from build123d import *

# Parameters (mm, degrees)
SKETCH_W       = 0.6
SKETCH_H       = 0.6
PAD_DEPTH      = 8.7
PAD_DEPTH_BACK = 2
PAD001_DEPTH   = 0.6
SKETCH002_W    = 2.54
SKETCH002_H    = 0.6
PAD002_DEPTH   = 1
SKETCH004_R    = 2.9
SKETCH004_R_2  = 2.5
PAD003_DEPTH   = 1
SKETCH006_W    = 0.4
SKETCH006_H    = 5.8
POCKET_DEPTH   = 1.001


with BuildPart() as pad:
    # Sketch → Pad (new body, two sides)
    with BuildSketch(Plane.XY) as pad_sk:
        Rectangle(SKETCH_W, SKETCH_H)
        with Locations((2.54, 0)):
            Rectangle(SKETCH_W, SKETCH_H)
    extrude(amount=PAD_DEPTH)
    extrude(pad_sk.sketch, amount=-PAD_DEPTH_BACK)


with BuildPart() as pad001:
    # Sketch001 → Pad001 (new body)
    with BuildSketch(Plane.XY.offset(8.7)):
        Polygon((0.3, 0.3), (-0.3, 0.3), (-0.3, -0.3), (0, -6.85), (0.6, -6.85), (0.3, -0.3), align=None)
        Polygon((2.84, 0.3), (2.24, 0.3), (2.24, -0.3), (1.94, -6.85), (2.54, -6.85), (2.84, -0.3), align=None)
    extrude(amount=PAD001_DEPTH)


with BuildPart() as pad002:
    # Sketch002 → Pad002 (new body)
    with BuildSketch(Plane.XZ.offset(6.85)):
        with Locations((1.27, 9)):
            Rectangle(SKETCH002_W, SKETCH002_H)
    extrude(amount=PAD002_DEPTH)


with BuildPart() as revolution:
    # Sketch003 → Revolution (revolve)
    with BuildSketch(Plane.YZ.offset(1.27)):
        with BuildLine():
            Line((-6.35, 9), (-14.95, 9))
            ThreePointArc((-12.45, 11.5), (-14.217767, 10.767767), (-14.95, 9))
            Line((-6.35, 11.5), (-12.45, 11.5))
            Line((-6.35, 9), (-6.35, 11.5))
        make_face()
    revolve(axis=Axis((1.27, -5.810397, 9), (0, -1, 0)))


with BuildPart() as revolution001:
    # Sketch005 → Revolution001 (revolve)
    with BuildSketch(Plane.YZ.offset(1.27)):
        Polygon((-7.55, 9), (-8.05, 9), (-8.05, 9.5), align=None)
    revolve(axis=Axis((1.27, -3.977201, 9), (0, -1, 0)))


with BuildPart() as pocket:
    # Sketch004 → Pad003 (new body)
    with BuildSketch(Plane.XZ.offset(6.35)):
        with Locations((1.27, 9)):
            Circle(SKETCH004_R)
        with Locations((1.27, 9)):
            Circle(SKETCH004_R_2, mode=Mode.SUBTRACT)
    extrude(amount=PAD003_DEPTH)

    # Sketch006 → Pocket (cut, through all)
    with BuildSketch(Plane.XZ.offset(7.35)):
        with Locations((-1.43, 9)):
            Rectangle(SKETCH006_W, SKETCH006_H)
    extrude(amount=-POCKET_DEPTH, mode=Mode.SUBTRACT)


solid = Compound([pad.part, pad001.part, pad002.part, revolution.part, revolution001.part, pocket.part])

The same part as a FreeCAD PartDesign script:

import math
import FreeCAD as App
import Part
import Sketcher

V = App.Vector
Q = App.Units.Quantity

doc = App.newDocument("Part")
body = doc.addObject("PartDesign::Body", "Body")
body.AllowCompound = True

sketch1 = doc.addObject("Sketcher::SketchObject", "Sketch")
body.addObject(sketch1)
sketch1.AttachmentSupport = (doc.XY_Plane, [""])
sketch1.MapMode = "FlatFace"
sketch1.addGeometry(Part.LineSegment(V(-0.3, 0.3, 0), V(-0.3, -0.3, 0)), False)
sketch1.addGeometry(Part.LineSegment(V(-0.3, -0.3, 0), V(0.3, -0.3, 0)), False)
sketch1.addGeometry(Part.LineSegment(V(0.3, -0.3, 0), V(0.3, 0.3, 0)), False)
sketch1.addGeometry(Part.LineSegment(V(0.3, 0.3, 0), V(-0.3, 0.3, 0)), False)
sketch1.addGeometry(Part.LineSegment(V(2.2, 0.3, 0), V(2.2, -0.3, 0)), False)
sketch1.addGeometry(Part.LineSegment(V(2.2, -0.3, 0), V(2.8, -0.3, 0)), False)
sketch1.addGeometry(Part.LineSegment(V(2.8, -0.3, 0), V(2.8, 0.3, 0)), False)
sketch1.addGeometry(Part.LineSegment(V(2.8, 0.3, 0), V(2.2, 0.3, 0)), False)
sketch1.addConstraint(Sketcher.Constraint("Coincident", 0, 2, 1, 1))
sketch1.addConstraint(Sketcher.Constraint("Coincident", 1, 2, 2, 1))
sketch1.addConstraint(Sketcher.Constraint("Coincident", 2, 2, 3, 1))
sketch1.addConstraint(Sketcher.Constraint("Coincident", 3, 2, 0, 1))
sketch1.addConstraint(Sketcher.Constraint("Coincident", 4, 2, 5, 1))
sketch1.addConstraint(Sketcher.Constraint("Coincident", 5, 2, 6, 1))
sketch1.addConstraint(Sketcher.Constraint("Coincident", 6, 2, 7, 1))
sketch1.addConstraint(Sketcher.Constraint("Coincident", 7, 2, 4, 1))
sketch1.addConstraint(Sketcher.Constraint("Vertical", 0))
sketch1.addConstraint(Sketcher.Constraint("Horizontal", 1))
sketch1.addConstraint(Sketcher.Constraint("Vertical", 2))
sketch1.addConstraint(Sketcher.Constraint("Horizontal", 3))
sketch1.addConstraint(Sketcher.Constraint("Vertical", 4))
sketch1.addConstraint(Sketcher.Constraint("Horizontal", 5))
sketch1.addConstraint(Sketcher.Constraint("Vertical", 6))
sketch1.addConstraint(Sketcher.Constraint("Horizontal", 7))
sketch1.addConstraint(Sketcher.Constraint("Symmetric", 0, 2, 2, 2, -1, 1))
sketch1.addConstraint(Sketcher.Constraint("Horizontal", 1, 2, 4, 2))
sketch1.addConstraint(Sketcher.Constraint("Horizontal", 3, 2, 6, 2))
sketch1.addConstraint(Sketcher.Constraint("Equal", 3, 5))
sketch1.addConstraint(Sketcher.Constraint("Equal", 7, 0))
sketch1.addConstraint(Sketcher.Constraint("DistanceX", 1, 1, 1, 2, Q("0.6 mm")))
sketch1.addConstraint(Sketcher.Constraint("DistanceX", -1, 1, 4, 2, Q("2.24 mm")))
pad1 = doc.addObject("PartDesign::Pad", "Pad")
body.addObject(pad1)
pad1.Profile = sketch1
pad1.Type = "TwoLengths"
pad1.Length = 8.7
pad1.Length2 = 2
body2 = doc.addObject("PartDesign::Body", "Body001")
body2.AllowCompound = True

sketch2 = doc.addObject("Sketcher::SketchObject", "Sketch001")
body2.addObject(sketch2)
sketch2.AttachmentSupport = (doc.getObject("XY_Plane001"), [""])
sketch2.MapMode = "FlatFace"
sketch2.AttachmentOffset = App.Placement(V(0, 0, 8.7), App.Rotation())
sketch2.addGeometry(Part.LineSegment(V(0.3, 0.3, 0), V(-0.3, 0.3, 0)), False)
sketch2.addGeometry(Part.LineSegment(V(-0.3, 0.3, 0), V(-0.3, -0.3, 0)), False)
sketch2.addGeometry(Part.LineSegment(V(-0.3, -0.3, 0), V(0, -6.8, 0)), False)
sketch2.addGeometry(Part.LineSegment(V(0, -6.8, 0), V(0.6, -6.8, 0)), False)
sketch2.addGeometry(Part.LineSegment(V(0.6, -6.8, 0), V(0.3, -0.3, 0)), False)
sketch2.addGeometry(Part.LineSegment(V(0.3, -0.3, 0), V(0.3, 0.3, 0)), False)
sketch2.addGeometry(Part.LineSegment(V(2.8, 0.3, 0), V(2.2, 0.3, 0)), False)
sketch2.addGeometry(Part.LineSegment(V(2.2, 0.3, 0), V(2.2, -0.3, 0)), False)
sketch2.addGeometry(Part.LineSegment(V(2.2, -0.3, 0), V(1.9, -6.8, 0)), False)
sketch2.addGeometry(Part.LineSegment(V(1.9, -6.8, 0), V(2.5, -6.8, 0)), False)
sketch2.addGeometry(Part.LineSegment(V(2.5, -6.8, 0), V(2.8, -0.3, 0)), False)
sketch2.addGeometry(Part.LineSegment(V(2.8, -0.3, 0), V(2.8, 0.3, 0)), False)
sketch2.addConstraint(Sketcher.Constraint("Coincident", 0, 2, 1, 1))
sketch2.addConstraint(Sketcher.Constraint("Coincident", 1, 2, 2, 1))
sketch2.addConstraint(Sketcher.Constraint("Coincident", 2, 2, 3, 1))
sketch2.addConstraint(Sketcher.Constraint("Coincident", 3, 2, 4, 1))
sketch2.addConstraint(Sketcher.Constraint("Coincident", 4, 2, 5, 1))
sketch2.addConstraint(Sketcher.Constraint("Coincident", 5, 2, 0, 1))
sketch2.addConstraint(Sketcher.Constraint("Coincident", 6, 2, 7, 1))
sketch2.addConstraint(Sketcher.Constraint("Coincident", 7, 2, 8, 1))
sketch2.addConstraint(Sketcher.Constraint("Coincident", 8, 2, 9, 1))
sketch2.addConstraint(Sketcher.Constraint("Coincident", 9, 2, 10, 1))
sketch2.addConstraint(Sketcher.Constraint("Coincident", 10, 2, 11, 1))
sketch2.addConstraint(Sketcher.Constraint("Coincident", 11, 2, 6, 1))
sketch2.addConstraint(Sketcher.Constraint("Horizontal", 0))
sketch2.addConstraint(Sketcher.Constraint("Vertical", 1))
sketch2.addConstraint(Sketcher.Constraint("Horizontal", 3))
sketch2.addConstraint(Sketcher.Constraint("Vertical", 5))
sketch2.addConstraint(Sketcher.Constraint("Horizontal", 6))
sketch2.addConstraint(Sketcher.Constraint("Vertical", 7))
sketch2.addConstraint(Sketcher.Constraint("Horizontal", 9))
sketch2.addConstraint(Sketcher.Constraint("Vertical", 11))
sketch2.addConstraint(Sketcher.Constraint("Symmetric", 0, 2, 4, 2, -1, 1))
sketch2.addConstraint(Sketcher.Constraint("PointOnObject", 2, 2, -2))
sketch2.addConstraint(Sketcher.Constraint("Parallel", 2, 4))
sketch2.addConstraint(Sketcher.Constraint("Parallel", 8, 10))
sketch2.addConstraint(Sketcher.Constraint("Horizontal", 1, 2, 4, 2))
sketch2.addConstraint(Sketcher.Constraint("Horizontal", 5, 2, 6, 2))
sketch2.addConstraint(Sketcher.Constraint("Horizontal", 4, 2, 7, 2))
sketch2.addConstraint(Sketcher.Constraint("Horizontal", 3, 2, 8, 2))
sketch2.addConstraint(Sketcher.Constraint("Horizontal", 7, 2, 10, 2))
sketch2.addConstraint(Sketcher.Constraint("Equal", 3, 6))
sketch2.addConstraint(Sketcher.Constraint("Equal", 9, 1))
sketch2.addConstraint(Sketcher.Constraint("Equal", 4, 8))
sketch2.addConstraint(Sketcher.Constraint("DistanceX", 0, 2, 0, 1, Q("0.6 mm")))
sketch2.addConstraint(Sketcher.Constraint("DistanceY", 2, 2, -1, 1, Q("6.85 mm")))
sketch2.addConstraint(Sketcher.Constraint("DistanceX", -1, 1, 6, 2, Q("2.24 mm")))
pad2 = doc.addObject("PartDesign::Pad", "Pad001")
body2.addObject(pad2)
pad2.Profile = sketch2
pad2.Length = 0.6
body3 = doc.addObject("PartDesign::Body", "Body002")

sketch3 = doc.addObject("Sketcher::SketchObject", "Sketch002")
body3.addObject(sketch3)
sketch3.AttachmentSupport = (doc.getObject("XZ_Plane002"), [""])
sketch3.MapMode = "FlatFace"
sketch3.AttachmentOffset = App.Placement(V(0, 0, 6.85), App.Rotation())
sketch3.addGeometry(Part.LineSegment(V(0, 9.3, 0), V(0, 8.7, 0)), False)
sketch3.addGeometry(Part.LineSegment(V(0, 8.7, 0), V(2.5, 8.7, 0)), False)
sketch3.addGeometry(Part.LineSegment(V(2.5, 8.7, 0), V(2.5, 9.3, 0)), False)
sketch3.addGeometry(Part.LineSegment(V(2.5, 9.3, 0), V(0, 9.3, 0)), False)
sketch3.addConstraint(Sketcher.Constraint("Coincident", 0, 2, 1, 1))
sketch3.addConstraint(Sketcher.Constraint("Coincident", 1, 2, 2, 1))
sketch3.addConstraint(Sketcher.Constraint("Coincident", 2, 2, 3, 1))
sketch3.addConstraint(Sketcher.Constraint("Coincident", 3, 2, 0, 1))
sketch3.addConstraint(Sketcher.Constraint("Vertical", 0))
sketch3.addConstraint(Sketcher.Constraint("Horizontal", 1))
sketch3.addConstraint(Sketcher.Constraint("Vertical", 2))
sketch3.addConstraint(Sketcher.Constraint("Horizontal", 3))
sketch3.addConstraint(Sketcher.Constraint("PointOnObject", 0, 2, -2))
sketch3.addConstraint(Sketcher.Constraint("DistanceY", 0, 2, 0, 1, Q("0.6 mm")))
sketch3.addConstraint(Sketcher.Constraint("DistanceX", 1, 1, 1, 2, Q("2.54 mm")))
sketch3.addConstraint(Sketcher.Constraint("DistanceY", -1, 1, 0, 2, Q("8.7 mm")))
pad3 = doc.addObject("PartDesign::Pad", "Pad002")
body3.addObject(pad3)
pad3.Profile = sketch3
pad3.Length = 1
body4 = doc.addObject("PartDesign::Body", "Body003")

sketch4 = doc.addObject("Sketcher::SketchObject", "Sketch003")
body4.addObject(sketch4)
sketch4.AttachmentSupport = (doc.getObject("YZ_Plane003"), [""])
sketch4.MapMode = "FlatFace"
sketch4.AttachmentOffset = App.Placement(V(0, 0, 1.27), App.Rotation())
sketch4.addGeometry(Part.LineSegment(V(-14.9, 9, 0), V(-6.3, 9, 0)), False)
sketch4.addGeometry(Part.LineSegment(V(-6.3, 9, 0), V(-6.3, 11.5, 0)), False)
sketch4.addGeometry(Part.LineSegment(V(-6.3, 11.5, 0), V(-12.4, 11.5, 0)), False)
sketch4.addGeometry(Part.ArcOfCircle(Part.Circle(V(-12.5, 9, 0), V(0, 0, 1), 2.5), math.radians(90), math.radians(180)), False)
sketch4.addGeometry(Part.LineSegment(V(-6.3, 9, 0), V(-14.9, 9, 0)), True)
sketch4.addConstraint(Sketcher.Constraint("Coincident", 0, 2, 1, 1))
sketch4.addConstraint(Sketcher.Constraint("Coincident", 1, 2, 2, 1))
sketch4.addConstraint(Sketcher.Constraint("Tangent", 2, 2, 3, 1))
sketch4.addConstraint(Sketcher.Constraint("Coincident", 3, 2, 0, 1))
sketch4.addConstraint(Sketcher.Constraint("Horizontal", 0))
sketch4.addConstraint(Sketcher.Constraint("Vertical", 1))
sketch4.addConstraint(Sketcher.Constraint("Horizontal", 2))
sketch4.addConstraint(Sketcher.Constraint("Horizontal", 4))
sketch4.addConstraint(Sketcher.Constraint("Coincident", 4, 1, 0, 2))
sketch4.addConstraint(Sketcher.Constraint("Horizontal", 3, 3, 0, 2))
sketch4.addConstraint(Sketcher.Constraint("Equal", 0, 4))
sketch4.addConstraint(Sketcher.Constraint("Radius", 3, Q("2.5 mm")))
sketch4.addConstraint(Sketcher.Constraint("DistanceX", 0, 1, 0, 2, Q("8.6 mm")))
sketch4.addConstraint(Sketcher.Constraint("DistanceY", -1, 1, 3, 3, Q("9 mm")))
sketch4.addConstraint(Sketcher.Constraint("DistanceX", 3, 3, -1, 1, Q("12.45 mm")))
revolution = doc.addObject("PartDesign::Revolution", "Revolution")
body4.addObject(revolution)
revolution.Profile = sketch4
revolution.ReferenceAxis = (sketch4, ["Axis0"])
revolution.Angle = 360
body5 = doc.addObject("PartDesign::Body", "Body004")

sketch5 = doc.addObject("Sketcher::SketchObject", "Sketch004")
body5.addObject(sketch5)
sketch5.AttachmentSupport = (doc.getObject("YZ_Plane004"), [""])
sketch5.MapMode = "FlatFace"
sketch5.AttachmentOffset = App.Placement(V(0, 0, 1.27), App.Rotation())
sketch5.addGeometry(Part.LineSegment(V(-8.1, 9, 0), V(-7.5, 9, 0)), False)
sketch5.addGeometry(Part.LineSegment(V(-7.5, 9, 0), V(-8.1, 9.5, 0)), False)
sketch5.addGeometry(Part.LineSegment(V(-8.1, 9.5, 0), V(-8.1, 9, 0)), False)
sketch5.addGeometry(Part.LineSegment(V(-7.5, 9, 0), V(-8.1, 9, 0)), True)
sketch5.addConstraint(Sketcher.Constraint("Coincident", 0, 2, 1, 1))
sketch5.addConstraint(Sketcher.Constraint("Coincident", 1, 2, 2, 1))
sketch5.addConstraint(Sketcher.Constraint("Coincident", 2, 2, 0, 1))
sketch5.addConstraint(Sketcher.Constraint("Horizontal", 0))
sketch5.addConstraint(Sketcher.Constraint("Vertical", 2))
sketch5.addConstraint(Sketcher.Constraint("Horizontal", 3))
sketch5.addConstraint(Sketcher.Constraint("Coincident", 3, 1, 0, 2))
sketch5.addConstraint(Sketcher.Constraint("Vertical", 1, 2, 3, 2))
sketch5.addConstraint(Sketcher.Constraint("Equal", 3, 2))
sketch5.addConstraint(Sketcher.Constraint("DistanceX", 0, 1, 0, 2, Q("0.5 mm")))
sketch5.addConstraint(Sketcher.Constraint("DistanceY", -1, 1, 0, 2, Q("9 mm")))
sketch5.addConstraint(Sketcher.Constraint("DistanceX", 0, 2, -1, 1, Q("7.55 mm")))
revolution2 = doc.addObject("PartDesign::Revolution", "Revolution001")
body5.addObject(revolution2)
revolution2.Profile = sketch5
revolution2.ReferenceAxis = (sketch5, ["Axis0"])
revolution2.Angle = 360
body6 = doc.addObject("PartDesign::Body", "Body005")

sketch6 = doc.addObject("Sketcher::SketchObject", "Sketch005")
body6.addObject(sketch6)
sketch6.AttachmentSupport = (doc.getObject("XZ_Plane005"), [""])
sketch6.MapMode = "FlatFace"
sketch6.AttachmentOffset = App.Placement(V(0, 0, 6.35), App.Rotation())
sketch6.addGeometry(Part.Circle(V(1.3, 9, 0), V(0, 0, 1), 2.9), False)
sketch6.addGeometry(Part.Circle(V(1.3, 9, 0), V(0, 0, 1), 2.5), False)
sketch6.addConstraint(Sketcher.Constraint("Coincident", 1, 3, 0, 3))
sketch6.addConstraint(Sketcher.Constraint("Diameter", 1, Q("5 mm")))
sketch6.addConstraint(Sketcher.Constraint("Diameter", 0, Q("5.8 mm")))
sketch6.addConstraint(Sketcher.Constraint("DistanceY", -1, 1, 0, 3, Q("9 mm")))
sketch6.addConstraint(Sketcher.Constraint("DistanceX", -1, 1, 0, 3, Q("1.27 mm")))
pad4 = doc.addObject("PartDesign::Pad", "Pad003")
body6.addObject(pad4)
pad4.Profile = sketch6
pad4.Length = 1

sketch7 = doc.addObject("Sketcher::SketchObject", "Sketch006")
body6.addObject(sketch7)
sketch7.AttachmentSupport = (doc.getObject("XZ_Plane005"), [""])
sketch7.MapMode = "FlatFace"
sketch7.AttachmentOffset = App.Placement(V(0, 0, 7.35), App.Rotation())
sketch7.addGeometry(Part.LineSegment(V(-1.63, 11.9, 0), V(-1.63, 6.1, 0)), False)
sketch7.addGeometry(Part.LineSegment(V(-1.63, 6.1, 0), V(-1.23, 6.1, 0)), False)
sketch7.addGeometry(Part.LineSegment(V(-1.23, 6.1, 0), V(-1.23, 11.9, 0)), False)
sketch7.addGeometry(Part.LineSegment(V(-1.23, 11.9, 0), V(-1.63, 11.9, 0)), False)
sketch7.addConstraint(Sketcher.Constraint("Coincident", 0, 2, 1, 1))
sketch7.addConstraint(Sketcher.Constraint("Coincident", 1, 2, 2, 1))
sketch7.addConstraint(Sketcher.Constraint("Coincident", 2, 2, 3, 1))
sketch7.addConstraint(Sketcher.Constraint("Coincident", 3, 2, 0, 1))
sketch7.addConstraint(Sketcher.Constraint("Vertical", 0))
sketch7.addConstraint(Sketcher.Constraint("Horizontal", 1))
sketch7.addConstraint(Sketcher.Constraint("Vertical", 2))
sketch7.addConstraint(Sketcher.Constraint("Horizontal", 3))
sketch7.addConstraint(Sketcher.Constraint("DistanceX", 1, 1, 1, 2, Q("0.4 mm")))
sketch7.addConstraint(Sketcher.Constraint("DistanceY", 0, 2, 0, 1, Q("5.8 mm")))
sketch7.addConstraint(Sketcher.Constraint("DistanceY", -1, 1, 0, 2, Q("6.1 mm")))
sketch7.addConstraint(Sketcher.Constraint("DistanceX", 0, 2, -1, 1, Q("1.63 mm")))
pocket1 = doc.addObject("PartDesign::Pocket", "Pocket")
body6.addObject(pocket1)
pocket1.Profile = sketch7
pocket1.Type = "ThroughAll"

doc.recompute()
